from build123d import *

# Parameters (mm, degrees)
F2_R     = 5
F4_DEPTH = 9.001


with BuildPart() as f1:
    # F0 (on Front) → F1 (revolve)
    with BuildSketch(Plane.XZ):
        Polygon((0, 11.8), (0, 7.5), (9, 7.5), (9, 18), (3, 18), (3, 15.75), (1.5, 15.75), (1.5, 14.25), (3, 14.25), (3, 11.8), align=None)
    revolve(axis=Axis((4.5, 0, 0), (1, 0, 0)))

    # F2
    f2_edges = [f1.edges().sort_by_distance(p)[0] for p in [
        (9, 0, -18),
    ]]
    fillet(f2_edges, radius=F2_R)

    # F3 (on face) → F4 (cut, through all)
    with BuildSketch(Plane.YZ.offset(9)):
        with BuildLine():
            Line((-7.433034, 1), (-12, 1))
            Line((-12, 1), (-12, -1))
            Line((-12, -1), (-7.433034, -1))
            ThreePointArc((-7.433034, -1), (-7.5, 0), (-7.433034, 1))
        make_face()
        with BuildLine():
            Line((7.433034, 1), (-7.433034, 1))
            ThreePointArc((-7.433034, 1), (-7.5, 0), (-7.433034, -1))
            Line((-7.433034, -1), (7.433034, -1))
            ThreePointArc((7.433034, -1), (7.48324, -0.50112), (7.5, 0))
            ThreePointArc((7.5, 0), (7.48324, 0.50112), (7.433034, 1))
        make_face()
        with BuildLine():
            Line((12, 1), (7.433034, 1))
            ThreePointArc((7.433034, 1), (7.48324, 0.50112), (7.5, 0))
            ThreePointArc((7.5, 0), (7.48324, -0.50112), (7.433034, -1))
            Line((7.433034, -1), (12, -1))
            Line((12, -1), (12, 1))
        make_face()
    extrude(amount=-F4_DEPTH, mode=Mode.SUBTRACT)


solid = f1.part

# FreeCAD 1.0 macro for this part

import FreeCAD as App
import Part
import Sketcher


def edges_at(feature, points):
    """Names of the edges that pass closest to the given points."""
    edges = feature.Shape.Edges
    near = lambda p: min(range(len(edges)), key=lambda i: edges[i].distToShape(Part.Vertex(*p))[0])
    return sorted({f"Edge{near(p) + 1}" for p in points})


def add_polygon(sketch, points):
    """Adds a closed chain of lines whose ends are joined by coincident constraints."""
    first, n = sketch.GeometryCount, len(points)
    for a, b in zip(points, points[1:] + points[:1]):
        sketch.addGeometry(Part.LineSegment(App.Vector(*a, 0), App.Vector(*b, 0)), False)
    for i in range(n):
        sketch.addConstraint(Sketcher.Constraint("Coincident", first + i, 2, first + (i + 1) % n, 1))

doc = App.newDocument("Part")
body = doc.addObject("PartDesign::Body", "Body")

# Sketch on XZ plane
sketch1 = doc.addObject("Sketcher::SketchObject", "Sketch")
body.addObject(sketch1)
sketch1.AttachmentSupport = (doc.XZ_Plane, [""])
sketch1.MapMode = "FlatFace"
add_polygon(sketch1, [(0, 11.8), (0, 7.5), (9, 7.5), (9, 18), (3, 18), (3, 15.8), (1.5, 15.8), (1.5, 14.2), (3, 14.2), (3, 11.8)])  # lines 0-9
sketch1.addConstraint([
    Sketcher.Constraint("Vertical", 0),
    Sketcher.Constraint("Horizontal", 1),
    Sketcher.Constraint("Vertical", 2),
    Sketcher.Constraint("Horizontal", 3),
    Sketcher.Constraint("Vertical", 4),
    Sketcher.Constraint("Horizontal", 5),
    Sketcher.Constraint("Vertical", 6),
    Sketcher.Constraint("Horizontal", 7),
    Sketcher.Constraint("Vertical", 8),
    Sketcher.Constraint("Horizontal", 9),
    Sketcher.Constraint("PointOnObject", 0, 2, -2),
    Sketcher.Constraint("Vertical", 4, 2, 7, 2),
    Sketcher.Constraint("Equal", 7, 6),
    Sketcher.Constraint("DistanceX", 1, 1, 1, 2, 9.0),
    Sketcher.Constraint("DistanceX", 3, 2, 3, 1, 6.0),
    Sketcher.Constraint("DistanceX", 5, 2, 5, 1, 1.5),
    Sketcher.Constraint("DistanceY", 0, 2, 0, 1, 4.3),
    Sketcher.Constraint("DistanceY", 2, 1, 2, 2, 10.5),
    Sketcher.Constraint("DistanceY", -1, 1, 2, 2, 18.0),
    Sketcher.Constraint("DistanceY", 4, 2, 4, 1, 2.25),
])
revolution = doc.addObject("PartDesign::Revolution", "Revolution")
body.addObject(revolution)
revolution.Profile = sketch1
revolution.ReferenceAxis = (sketch1, ["H_Axis"])
revolution.Angle = 360
doc.recompute()

fillet = doc.addObject("PartDesign::Fillet", "Fillet")
body.addObject(fillet)
fillet.Base = (revolution, edges_at(revolution, [(9, 0, -18)]))
fillet.Radius = 5

# Sketch on YZ plane
sketch2 = doc.addObject("Sketcher::SketchObject", "Sketch001")
body.addObject(sketch2)
sketch2.AttachmentSupport = (doc.YZ_Plane, [""])
sketch2.MapMode = "FlatFace"
sketch2.AttachmentOffset = App.Placement(App.Vector(0, 0, 9), App.Rotation())
add_polygon(sketch2, [(-12, 1), (-12, -1), (12, -1), (12, 1)])  # lines 0-3
sketch2.addConstraint([
    Sketcher.Constraint("Vertical", 0),
    Sketcher.Constraint("Horizontal", 1),
    Sketcher.Constraint("Vertical", 2),
    Sketcher.Constraint("Horizontal", 3),
    Sketcher.Constraint("Symmetric", 0, 2, 2, 2, -1, 1),
    Sketcher.Constraint("DistanceX", 1, 1, 1, 2, 24.0),
    Sketcher.Constraint("DistanceY", 0, 2, 0, 1, 2.0),
])
pocket1 = doc.addObject("PartDesign::Pocket", "Pocket")
body.addObject(pocket1)
pocket1.Profile = sketch2
pocket1.Type = "ThroughAll"

doc.recompute()
